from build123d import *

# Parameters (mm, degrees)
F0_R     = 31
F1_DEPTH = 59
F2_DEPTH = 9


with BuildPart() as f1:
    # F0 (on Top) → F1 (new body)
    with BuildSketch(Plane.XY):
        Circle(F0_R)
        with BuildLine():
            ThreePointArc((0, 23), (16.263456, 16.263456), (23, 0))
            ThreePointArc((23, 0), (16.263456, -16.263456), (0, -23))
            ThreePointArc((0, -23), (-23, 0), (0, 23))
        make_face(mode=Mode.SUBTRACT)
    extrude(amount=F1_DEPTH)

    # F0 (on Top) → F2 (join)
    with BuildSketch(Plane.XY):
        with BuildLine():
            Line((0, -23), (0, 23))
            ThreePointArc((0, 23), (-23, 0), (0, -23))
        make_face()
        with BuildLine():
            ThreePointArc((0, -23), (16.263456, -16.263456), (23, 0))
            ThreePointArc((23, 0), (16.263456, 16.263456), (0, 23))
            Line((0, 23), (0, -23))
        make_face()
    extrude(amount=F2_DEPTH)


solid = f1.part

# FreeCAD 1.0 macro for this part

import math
import FreeCAD as App
import Part
import Sketcher

doc = App.newDocument("Part")
body = doc.addObject("PartDesign::Body", "Body")

sketch1 = doc.addObject("Sketcher::SketchObject", "Sketch")
body.addObject(sketch1)
sketch1.AttachmentSupport = (doc.XY_Plane, [""])
sketch1.MapMode = "FlatFace"
sketch1.addGeometry(Part.Circle(App.Vector(0, 0, 0), App.Vector(0, 0, 1), 31), False)
sketch1.addGeometry(Part.ArcOfCircle(Part.Circle(App.Vector(0, 0, 0), App.Vector(0, 0, 1), 23), math.radians(90), math.radians(270)), False)
sketch1.addGeometry(Part.ArcOfCircle(Part.Circle(App.Vector(0, 0, 0), App.Vector(0, 0, 1), 23), math.radians(0), math.radians(90)), False)
sketch1.addGeometry(Part.ArcOfCircle(Part.Circle(App.Vector(0, 0, 0), App.Vector(0, 0, 1), 23), math.radians(-90), math.radians(0)), False)
sketch1.addConstraint(Sketcher.Constraint("Tangent", 1, 1, 2, 2))
sketch1.addConstraint(Sketcher.Constraint("Tangent", 2, 1, 3, 2))
sketch1.addConstraint(Sketcher.Constraint("Tangent", 3, 1, 1, 2))
sketch1.addConstraint(Sketcher.Constraint("Coincident", 0, 3, -1, 1))
sketch1.addConstraint(Sketcher.Constraint("Coincident", 1, 3, -1, 1))
sketch1.addConstraint(Sketcher.Constraint("PointOnObject", 1, 1, -2))
sketch1.addConstraint(Sketcher.Constraint("PointOnObject", 2, 1, -1))
sketch1.addConstraint(Sketcher.Constraint("PointOnObject", 3, 1, -2))
sketch1.addConstraint(Sketcher.Constraint("Diameter", 0, 62.0))
sketch1.addConstraint(Sketcher.Constraint("Radius", 1, 23.0))
pad1 = doc.addObject("PartDesign::Pad", "Pad")
body.addObject(pad1)
pad1.Profile = sketch1
pad1.Length = 59

sketch2 = doc.addObject("Sketcher::SketchObject", "Sketch001")
body.addObject(sketch2)
sketch2.AttachmentSupport = (doc.XY_Plane, [""])
sketch2.MapMode = "FlatFace"
sketch2.addGeometry(Part.ArcOfCircle(Part.Circle(App.Vector(0, 0, 0), App.Vector(0, 0, 1), 23), math.radians(90), math.radians(270)), False)
sketch2.addGeometry(Part.ArcOfCircle(Part.Circle(App.Vector(0, 0, 0), App.Vector(0, 0, 1), 23), math.radians(-90), math.radians(0)), False)
sketch2.addGeometry(Part.ArcOfCircle(Part.Circle(App.Vector(0, 0, 0), App.Vector(0, 0, 1), 23), math.radians(0), math.radians(90)), False)
sketch2.addConstraint(Sketcher.Constraint("Tangent", 0, 2, 1, 1))
sketch2.addConstraint(Sketcher.Constraint("Tangent", 1, 2, 2, 1))
sketch2.addConstraint(Sketcher.Constraint("Tangent", 2, 2, 0, 1))
sketch2.addConstraint(Sketcher.Constraint("Coincident", 0, 3, -1, 1))
sketch2.addConstraint(Sketcher.Constraint("PointOnObject", 0, 2, -2))
sketch2.addConstraint(Sketcher.Constraint("PointOnObject", 1, 2, -1))
sketch2.addConstraint(Sketcher.Constraint("PointOnObject", 2, 2, -2))
sketch2.addConstraint(Sketcher.Constraint("Radius", 0, 23.0))
pad2 = doc.addObject("PartDesign::Pad", "Pad001")
body.addObject(pad2)
pad2.Profile = sketch2
pad2.Length = 9

doc.recompute()
